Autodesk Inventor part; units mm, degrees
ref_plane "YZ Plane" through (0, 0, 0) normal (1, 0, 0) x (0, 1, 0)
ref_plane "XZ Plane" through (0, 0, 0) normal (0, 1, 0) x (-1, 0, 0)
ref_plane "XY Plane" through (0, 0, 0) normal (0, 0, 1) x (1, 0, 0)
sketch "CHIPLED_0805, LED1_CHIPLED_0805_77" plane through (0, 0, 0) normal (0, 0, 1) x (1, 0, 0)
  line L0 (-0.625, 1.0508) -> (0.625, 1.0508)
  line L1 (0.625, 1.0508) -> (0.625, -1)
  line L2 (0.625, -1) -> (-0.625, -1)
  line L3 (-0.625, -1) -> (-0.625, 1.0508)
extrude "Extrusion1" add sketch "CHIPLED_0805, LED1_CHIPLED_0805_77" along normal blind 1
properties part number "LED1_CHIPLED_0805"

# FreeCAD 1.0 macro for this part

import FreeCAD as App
import Part
import Sketcher


def add_polygon(sketch, points):
    """Adds a closed chain of lines whose ends are joined by coincident constraints."""
    first, n = sketch.GeometryCount, len(points)
    for a, b in zip(points, points[1:] + points[:1]):
        sketch.addGeometry(Part.LineSegment(App.Vector(*a, 0), App.Vector(*b, 0)), False)
    for i in range(n):
        sketch.addConstraint(Sketcher.Constraint("Coincident", first + i, 2, first + (i + 1) % n, 1))

doc = App.newDocument("Part")
body = doc.addObject("PartDesign::Body", "Body")

sketch1 = body.newObject("Sketcher::SketchObject", "Sketch")
sketch1.AttachmentSupport = (doc.getObject("XY_Plane"), [""])
sketch1.MapMode = "FlatFace"
add_polygon(sketch1, [(0.6, 1.1), (-0.6, 1.1), (-0.6, -1), (0.6, -1)])
sketch1.addConstraint(Sketcher.Constraint("Horizontal", 0))
sketch1.addConstraint(Sketcher.Constraint("Vertical", 1))
sketch1.addConstraint(Sketcher.Constraint("Horizontal", 2))
sketch1.addConstraint(Sketcher.Constraint("Vertical", 3))
sketch1.addConstraint(Sketcher.Constraint("DistanceY", 1, 2, -1, 1, 1.0))
sketch1.addConstraint(Sketcher.Constraint("DistanceX", 0, 2, 0, 1, 1.25))
sketch1.addConstraint(Sketcher.Constraint("DistanceY", 1, 2, 1, 1, 2.0508))
sketch1.addConstraint(Sketcher.Constraint("DistanceX", 0, 2, -1, 1, 0.625))
pad1 = body.newObject("PartDesign::Pad", "Pad")
pad1.Profile = sketch1
pad1.Length = 1

doc.recompute()
